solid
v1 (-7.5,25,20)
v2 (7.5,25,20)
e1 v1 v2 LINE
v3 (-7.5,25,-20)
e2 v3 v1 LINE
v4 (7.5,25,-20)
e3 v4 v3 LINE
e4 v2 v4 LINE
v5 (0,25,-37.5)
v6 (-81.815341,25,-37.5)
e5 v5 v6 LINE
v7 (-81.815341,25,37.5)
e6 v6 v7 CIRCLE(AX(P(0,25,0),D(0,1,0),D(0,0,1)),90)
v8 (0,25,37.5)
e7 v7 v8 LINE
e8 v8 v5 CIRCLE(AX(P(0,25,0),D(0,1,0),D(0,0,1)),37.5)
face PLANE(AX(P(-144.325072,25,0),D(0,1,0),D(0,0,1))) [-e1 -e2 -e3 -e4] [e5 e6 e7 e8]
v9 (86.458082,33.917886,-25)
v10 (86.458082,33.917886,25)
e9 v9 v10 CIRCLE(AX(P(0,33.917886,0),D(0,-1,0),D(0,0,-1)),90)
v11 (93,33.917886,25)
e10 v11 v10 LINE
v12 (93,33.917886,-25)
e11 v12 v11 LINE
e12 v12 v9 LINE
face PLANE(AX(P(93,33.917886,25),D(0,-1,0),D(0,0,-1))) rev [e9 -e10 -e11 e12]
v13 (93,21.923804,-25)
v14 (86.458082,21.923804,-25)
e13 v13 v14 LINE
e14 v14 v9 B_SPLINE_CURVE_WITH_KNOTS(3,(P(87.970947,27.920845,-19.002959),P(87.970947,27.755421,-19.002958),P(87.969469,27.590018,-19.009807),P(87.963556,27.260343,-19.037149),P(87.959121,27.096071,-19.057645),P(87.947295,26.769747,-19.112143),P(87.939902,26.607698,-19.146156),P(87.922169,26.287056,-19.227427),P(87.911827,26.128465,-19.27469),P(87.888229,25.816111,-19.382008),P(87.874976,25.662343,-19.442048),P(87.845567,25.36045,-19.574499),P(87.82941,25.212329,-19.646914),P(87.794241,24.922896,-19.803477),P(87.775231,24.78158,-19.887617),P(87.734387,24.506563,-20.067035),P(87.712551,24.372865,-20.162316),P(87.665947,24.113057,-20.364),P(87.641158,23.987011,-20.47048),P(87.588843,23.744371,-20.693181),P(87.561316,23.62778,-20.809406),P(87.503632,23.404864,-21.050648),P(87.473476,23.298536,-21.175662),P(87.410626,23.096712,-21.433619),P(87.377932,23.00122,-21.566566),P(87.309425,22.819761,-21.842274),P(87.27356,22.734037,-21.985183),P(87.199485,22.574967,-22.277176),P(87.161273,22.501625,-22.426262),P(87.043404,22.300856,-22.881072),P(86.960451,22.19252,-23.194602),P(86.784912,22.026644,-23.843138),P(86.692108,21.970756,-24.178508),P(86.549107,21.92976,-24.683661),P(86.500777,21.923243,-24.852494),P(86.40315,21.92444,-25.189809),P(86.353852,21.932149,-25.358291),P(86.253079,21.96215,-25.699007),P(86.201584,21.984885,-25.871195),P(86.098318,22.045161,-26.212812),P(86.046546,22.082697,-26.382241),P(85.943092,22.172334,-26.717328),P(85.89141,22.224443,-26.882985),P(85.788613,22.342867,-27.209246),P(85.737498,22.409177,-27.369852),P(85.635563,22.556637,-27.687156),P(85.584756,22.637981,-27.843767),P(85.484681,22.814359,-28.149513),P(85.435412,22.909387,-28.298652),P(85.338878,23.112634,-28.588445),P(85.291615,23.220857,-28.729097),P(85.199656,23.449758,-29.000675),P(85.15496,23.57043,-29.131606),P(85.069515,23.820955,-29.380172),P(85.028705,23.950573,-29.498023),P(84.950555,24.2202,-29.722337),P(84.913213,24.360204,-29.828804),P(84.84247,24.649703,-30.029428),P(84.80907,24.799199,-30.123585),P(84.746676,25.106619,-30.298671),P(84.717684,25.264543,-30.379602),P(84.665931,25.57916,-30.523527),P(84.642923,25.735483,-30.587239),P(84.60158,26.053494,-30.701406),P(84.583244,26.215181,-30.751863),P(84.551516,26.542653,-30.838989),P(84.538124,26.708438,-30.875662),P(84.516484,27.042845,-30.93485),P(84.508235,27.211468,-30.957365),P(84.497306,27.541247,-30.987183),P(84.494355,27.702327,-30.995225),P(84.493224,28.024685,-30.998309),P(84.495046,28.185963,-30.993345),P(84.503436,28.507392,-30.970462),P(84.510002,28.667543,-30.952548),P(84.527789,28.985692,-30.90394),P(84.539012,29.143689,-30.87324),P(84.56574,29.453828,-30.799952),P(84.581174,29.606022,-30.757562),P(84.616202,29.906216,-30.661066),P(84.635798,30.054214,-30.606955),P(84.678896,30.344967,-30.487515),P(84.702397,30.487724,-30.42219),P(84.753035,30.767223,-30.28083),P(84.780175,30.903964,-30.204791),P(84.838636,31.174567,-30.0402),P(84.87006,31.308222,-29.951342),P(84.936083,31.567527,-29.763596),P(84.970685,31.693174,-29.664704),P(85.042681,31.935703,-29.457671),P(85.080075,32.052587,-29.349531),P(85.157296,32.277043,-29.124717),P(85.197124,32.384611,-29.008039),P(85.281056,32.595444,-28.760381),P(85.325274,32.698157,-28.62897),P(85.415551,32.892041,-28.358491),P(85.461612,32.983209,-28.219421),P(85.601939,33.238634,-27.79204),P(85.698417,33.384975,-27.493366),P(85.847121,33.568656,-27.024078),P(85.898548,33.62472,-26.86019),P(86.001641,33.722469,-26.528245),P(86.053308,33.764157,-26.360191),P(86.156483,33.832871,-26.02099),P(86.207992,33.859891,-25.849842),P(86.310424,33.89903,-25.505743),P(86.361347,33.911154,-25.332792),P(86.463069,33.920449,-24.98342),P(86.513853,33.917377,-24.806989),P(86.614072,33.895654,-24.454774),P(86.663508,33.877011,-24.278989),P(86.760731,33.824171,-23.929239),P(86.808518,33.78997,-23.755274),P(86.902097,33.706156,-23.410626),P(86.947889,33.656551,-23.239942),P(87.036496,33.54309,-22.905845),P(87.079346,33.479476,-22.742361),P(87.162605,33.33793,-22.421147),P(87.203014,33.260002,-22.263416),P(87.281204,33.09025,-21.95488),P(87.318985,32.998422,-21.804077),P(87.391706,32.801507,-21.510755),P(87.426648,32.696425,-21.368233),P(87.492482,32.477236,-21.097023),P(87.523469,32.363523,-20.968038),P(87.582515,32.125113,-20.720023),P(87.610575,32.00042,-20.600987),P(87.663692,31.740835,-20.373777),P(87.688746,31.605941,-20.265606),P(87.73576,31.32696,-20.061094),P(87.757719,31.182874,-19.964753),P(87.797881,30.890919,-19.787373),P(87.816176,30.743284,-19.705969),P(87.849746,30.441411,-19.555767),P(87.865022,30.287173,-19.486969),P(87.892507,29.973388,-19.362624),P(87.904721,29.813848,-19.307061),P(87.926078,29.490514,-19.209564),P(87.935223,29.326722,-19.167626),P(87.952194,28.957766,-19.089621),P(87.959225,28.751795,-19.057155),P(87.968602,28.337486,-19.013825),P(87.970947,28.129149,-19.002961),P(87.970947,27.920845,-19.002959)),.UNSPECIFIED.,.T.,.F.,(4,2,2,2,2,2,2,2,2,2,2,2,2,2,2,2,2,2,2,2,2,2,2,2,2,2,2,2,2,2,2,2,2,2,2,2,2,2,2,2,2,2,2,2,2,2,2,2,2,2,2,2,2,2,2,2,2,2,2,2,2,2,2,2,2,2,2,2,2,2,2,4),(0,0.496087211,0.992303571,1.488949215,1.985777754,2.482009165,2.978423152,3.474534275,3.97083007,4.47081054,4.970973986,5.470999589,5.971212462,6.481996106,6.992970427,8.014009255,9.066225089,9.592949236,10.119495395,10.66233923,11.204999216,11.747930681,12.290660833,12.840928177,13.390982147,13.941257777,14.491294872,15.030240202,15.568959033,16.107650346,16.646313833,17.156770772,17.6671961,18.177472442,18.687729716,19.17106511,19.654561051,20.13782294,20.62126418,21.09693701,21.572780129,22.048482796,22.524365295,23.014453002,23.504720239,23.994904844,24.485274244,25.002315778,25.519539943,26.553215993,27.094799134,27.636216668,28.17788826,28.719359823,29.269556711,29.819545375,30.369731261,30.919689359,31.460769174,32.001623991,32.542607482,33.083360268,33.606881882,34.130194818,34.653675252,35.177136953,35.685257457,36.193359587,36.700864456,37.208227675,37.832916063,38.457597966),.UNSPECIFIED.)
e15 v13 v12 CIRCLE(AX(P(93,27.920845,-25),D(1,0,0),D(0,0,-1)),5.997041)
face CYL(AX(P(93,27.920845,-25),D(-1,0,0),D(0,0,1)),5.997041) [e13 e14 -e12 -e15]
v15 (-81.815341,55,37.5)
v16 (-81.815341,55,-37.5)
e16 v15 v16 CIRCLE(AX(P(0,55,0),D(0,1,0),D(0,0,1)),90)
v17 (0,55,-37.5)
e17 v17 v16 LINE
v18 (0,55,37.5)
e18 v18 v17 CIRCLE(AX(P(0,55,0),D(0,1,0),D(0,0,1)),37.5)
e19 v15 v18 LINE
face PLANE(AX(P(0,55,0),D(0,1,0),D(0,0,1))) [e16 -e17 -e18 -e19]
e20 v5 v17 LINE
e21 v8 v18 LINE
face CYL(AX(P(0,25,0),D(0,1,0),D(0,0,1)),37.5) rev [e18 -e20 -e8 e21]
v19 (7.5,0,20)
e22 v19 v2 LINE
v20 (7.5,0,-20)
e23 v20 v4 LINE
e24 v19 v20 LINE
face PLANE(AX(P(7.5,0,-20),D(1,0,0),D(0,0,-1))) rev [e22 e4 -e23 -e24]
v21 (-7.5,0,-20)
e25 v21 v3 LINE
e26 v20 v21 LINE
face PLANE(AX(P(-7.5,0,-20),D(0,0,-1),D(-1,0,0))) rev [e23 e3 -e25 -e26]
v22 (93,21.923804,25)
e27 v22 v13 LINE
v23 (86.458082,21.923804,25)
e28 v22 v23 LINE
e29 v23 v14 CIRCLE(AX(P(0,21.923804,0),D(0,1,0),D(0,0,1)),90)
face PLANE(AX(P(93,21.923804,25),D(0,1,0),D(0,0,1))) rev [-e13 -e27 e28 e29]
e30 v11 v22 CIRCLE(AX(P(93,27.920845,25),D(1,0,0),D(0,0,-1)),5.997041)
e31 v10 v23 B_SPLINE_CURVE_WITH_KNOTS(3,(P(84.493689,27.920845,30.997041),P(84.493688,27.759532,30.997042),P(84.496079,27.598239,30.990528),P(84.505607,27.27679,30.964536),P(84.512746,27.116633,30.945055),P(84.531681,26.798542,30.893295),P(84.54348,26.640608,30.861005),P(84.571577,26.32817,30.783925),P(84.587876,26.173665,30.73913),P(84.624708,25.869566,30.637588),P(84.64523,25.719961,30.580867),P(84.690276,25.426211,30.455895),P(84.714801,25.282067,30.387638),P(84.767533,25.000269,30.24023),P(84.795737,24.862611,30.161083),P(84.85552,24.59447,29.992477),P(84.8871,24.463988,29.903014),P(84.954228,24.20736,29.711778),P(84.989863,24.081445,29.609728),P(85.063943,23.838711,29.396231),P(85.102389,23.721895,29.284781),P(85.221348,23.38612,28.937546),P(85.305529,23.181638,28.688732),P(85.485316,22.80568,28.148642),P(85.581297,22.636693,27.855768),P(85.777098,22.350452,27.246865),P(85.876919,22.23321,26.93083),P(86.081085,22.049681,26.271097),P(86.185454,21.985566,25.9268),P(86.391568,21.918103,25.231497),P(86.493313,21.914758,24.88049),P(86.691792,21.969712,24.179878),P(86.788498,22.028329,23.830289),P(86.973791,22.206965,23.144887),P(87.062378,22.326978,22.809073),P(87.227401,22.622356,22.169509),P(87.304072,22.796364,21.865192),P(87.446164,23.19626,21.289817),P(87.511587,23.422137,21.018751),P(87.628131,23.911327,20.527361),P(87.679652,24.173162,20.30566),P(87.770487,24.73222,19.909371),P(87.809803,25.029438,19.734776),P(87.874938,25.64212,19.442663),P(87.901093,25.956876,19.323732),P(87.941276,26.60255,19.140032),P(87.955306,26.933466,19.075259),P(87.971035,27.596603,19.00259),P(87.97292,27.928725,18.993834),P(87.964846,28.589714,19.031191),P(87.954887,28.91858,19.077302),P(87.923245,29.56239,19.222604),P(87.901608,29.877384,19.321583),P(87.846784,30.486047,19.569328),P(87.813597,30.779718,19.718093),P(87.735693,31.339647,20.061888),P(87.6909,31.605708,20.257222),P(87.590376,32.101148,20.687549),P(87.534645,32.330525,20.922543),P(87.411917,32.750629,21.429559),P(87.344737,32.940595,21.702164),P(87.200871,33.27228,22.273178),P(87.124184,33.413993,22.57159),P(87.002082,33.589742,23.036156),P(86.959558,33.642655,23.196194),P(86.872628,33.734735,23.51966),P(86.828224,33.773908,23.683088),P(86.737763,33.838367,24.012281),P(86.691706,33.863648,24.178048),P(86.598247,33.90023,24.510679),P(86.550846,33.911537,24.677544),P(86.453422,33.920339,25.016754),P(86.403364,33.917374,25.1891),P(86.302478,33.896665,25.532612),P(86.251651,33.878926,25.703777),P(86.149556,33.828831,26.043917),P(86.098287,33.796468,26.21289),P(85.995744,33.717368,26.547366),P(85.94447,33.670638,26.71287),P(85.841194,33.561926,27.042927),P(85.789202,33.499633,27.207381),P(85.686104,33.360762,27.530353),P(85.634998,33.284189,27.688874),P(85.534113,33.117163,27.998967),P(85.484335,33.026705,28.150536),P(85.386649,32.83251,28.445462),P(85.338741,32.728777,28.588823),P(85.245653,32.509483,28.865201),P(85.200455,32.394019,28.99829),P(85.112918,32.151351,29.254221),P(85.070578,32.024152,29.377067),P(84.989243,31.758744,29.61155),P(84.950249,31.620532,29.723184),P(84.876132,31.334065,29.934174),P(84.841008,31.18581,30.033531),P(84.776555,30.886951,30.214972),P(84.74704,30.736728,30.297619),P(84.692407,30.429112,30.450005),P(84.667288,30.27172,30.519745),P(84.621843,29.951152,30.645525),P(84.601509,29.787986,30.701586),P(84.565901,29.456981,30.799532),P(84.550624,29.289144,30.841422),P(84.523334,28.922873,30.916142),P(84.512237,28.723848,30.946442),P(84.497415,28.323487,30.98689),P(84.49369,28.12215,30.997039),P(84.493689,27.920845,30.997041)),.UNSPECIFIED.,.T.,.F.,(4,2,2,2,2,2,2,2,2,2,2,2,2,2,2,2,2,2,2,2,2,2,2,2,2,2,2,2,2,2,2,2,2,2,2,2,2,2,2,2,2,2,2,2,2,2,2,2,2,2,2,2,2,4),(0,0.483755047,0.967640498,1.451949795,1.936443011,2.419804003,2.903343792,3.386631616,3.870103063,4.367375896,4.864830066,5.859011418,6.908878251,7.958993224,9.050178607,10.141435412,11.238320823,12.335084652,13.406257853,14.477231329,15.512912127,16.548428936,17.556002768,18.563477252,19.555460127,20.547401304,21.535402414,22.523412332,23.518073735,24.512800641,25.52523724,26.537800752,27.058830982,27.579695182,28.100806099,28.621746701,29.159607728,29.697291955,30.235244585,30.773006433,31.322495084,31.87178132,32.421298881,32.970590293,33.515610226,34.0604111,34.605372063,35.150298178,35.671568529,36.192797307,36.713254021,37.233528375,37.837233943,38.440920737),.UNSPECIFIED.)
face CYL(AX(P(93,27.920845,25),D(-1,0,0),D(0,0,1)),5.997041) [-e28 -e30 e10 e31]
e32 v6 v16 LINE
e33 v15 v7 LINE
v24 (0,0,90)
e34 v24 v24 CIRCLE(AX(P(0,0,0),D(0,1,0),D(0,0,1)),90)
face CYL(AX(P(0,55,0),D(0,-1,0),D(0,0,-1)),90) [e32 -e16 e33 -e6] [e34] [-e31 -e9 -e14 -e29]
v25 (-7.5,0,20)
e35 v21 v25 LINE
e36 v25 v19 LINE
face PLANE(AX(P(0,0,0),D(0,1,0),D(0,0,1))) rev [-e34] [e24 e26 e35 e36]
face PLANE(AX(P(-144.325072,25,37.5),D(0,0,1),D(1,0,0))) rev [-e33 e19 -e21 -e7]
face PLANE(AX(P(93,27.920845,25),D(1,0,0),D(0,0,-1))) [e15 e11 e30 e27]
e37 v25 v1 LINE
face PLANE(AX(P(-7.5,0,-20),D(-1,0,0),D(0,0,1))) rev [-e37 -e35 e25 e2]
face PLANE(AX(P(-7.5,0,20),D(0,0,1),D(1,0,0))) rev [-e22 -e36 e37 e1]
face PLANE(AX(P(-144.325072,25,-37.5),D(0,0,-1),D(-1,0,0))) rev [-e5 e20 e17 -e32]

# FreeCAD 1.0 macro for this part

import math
import FreeCAD as App
import Part
import Sketcher

V = App.Vector
Q = App.Units.Quantity


def add_polygon(sketch, points):
    """Adds a closed chain of lines whose ends are joined by coincident constraints."""
    first, n = sketch.GeometryCount, len(points)
    for a, b in zip(points, points[1:] + points[:1]):
        sketch.addGeometry(Part.LineSegment(App.Vector(*a, 0), App.Vector(*b, 0)), False)
    for i in range(n):
        sketch.addConstraint(Sketcher.Constraint("Coincident", first + i, 2, first + (i + 1) % n, 1))

doc = App.newDocument("Part")
body = doc.addObject("PartDesign::Body", "Body")

sketch1 = body.newObject("Sketcher::SketchObject", "Sketch")
sketch1.AttachmentSupport = (doc.getObject("XZ_Plane"), [""])
sketch1.MapMode = "FlatFace"
sketch1.addGeometry(Part.Circle(V(0, 0, 0), V(0, 0, 1), 90), False)
sketch1.addConstraint([
    Sketcher.Constraint("Coincident", 0, 3, -1, 1),
    Sketcher.Constraint("Diameter", 0, Q("180 mm")),
])
pad1 = body.newObject("PartDesign::Pad", "Pad")
pad1.Profile = sketch1
pad1.Length = 55
pad1.Reversed = True

sketch2 = body.newObject("Sketcher::SketchObject", "Sketch001")
sketch2.AttachmentSupport = (doc.getObject("XZ_Plane"), [""])
sketch2.MapMode = "FlatFace"
sketch2.AttachmentOffset = App.Placement(V(0, 0, -55), App.Rotation())
sketch2.addGeometry([
    Part.LineSegment(V(0, -38, 0), V(-144, -38, 0)),
    Part.ArcOfCircle(Part.Circle(V(-144, 0, 0), V(0, 0, 1), 38), math.radians(90), math.radians(270)),
    Part.LineSegment(V(-144, 38, 0), V(0, 38, 0)),
    Part.ArcOfCircle(Part.Circle(V(0, 0, 0), V(0, 0, 1), 38), math.radians(-90), math.radians(90)),
], False)
sketch2.addConstraint([
    Sketcher.Constraint("Tangent", 0, 2, 1, 2),
    Sketcher.Constraint("Tangent", 1, 1, 2, 1),
    Sketcher.Constraint("Tangent", 2, 2, 3, 2),
    Sketcher.Constraint("Tangent", 3, 1, 0, 1),
    Sketcher.Constraint("Horizontal", 0),
    Sketcher.Constraint("Horizontal", 2),
    Sketcher.Constraint("Coincident", 3, 3, -1, 1),
    Sketcher.Constraint("Radius", 1, Q("37.5 mm")),
    Sketcher.Constraint("DistanceX", 0, 2, 0, 1, Q("144.325072 mm")),
])
pocket1 = body.newObject("PartDesign::Pocket", "Pocket")
pocket1.Profile = sketch2
pocket1.Length = 30
pocket1.Reversed = True

sketch3 = body.newObject("Sketcher::SketchObject", "Sketch002")
sketch3.AttachmentSupport = (doc.getObject("XZ_Plane"), [""])
sketch3.MapMode = "FlatFace"
sketch3.AttachmentOffset = App.Placement(V(0, 0, -25), App.Rotation())
add_polygon(sketch3, [(-8, -20), (-8, 20), (8, 20), (8, -20)])
sketch3.addConstraint([
    Sketcher.Constraint("Vertical", 0),
    Sketcher.Constraint("Horizontal", 1),
    Sketcher.Constraint("Vertical", 2),
    Sketcher.Constraint("Horizontal", 3),
    Sketcher.Constraint("Symmetric", 0, 2, 2, 2, -1, 1),
    Sketcher.Constraint("DistanceX", 1, 1, 1, 2, Q("15 mm")),
    Sketcher.Constraint("DistanceY", 0, 1, 0, 2, Q("40 mm")),
])
pocket2 = body.newObject("PartDesign::Pocket", "Pocket001")
pocket2.Profile = sketch3
pocket2.Type = "ThroughAll"
pocket2.Reversed = True

sketch4 = body.newObject("Sketcher::SketchObject", "Sketch003")
sketch4.AttachmentSupport = (doc.getObject("YZ_Plane"), [""])
sketch4.MapMode = "FlatFace"
sketch4.AttachmentOffset = App.Placement(V(0, 0, 50), App.Rotation())
sketch4.addGeometry([
    Part.LineSegment(V(34, -25, 0), V(34, 25, 0)),
    Part.ArcOfCircle(Part.Circle(V(28, 25, 0), V(0, 0, 1), 6), math.radians(0), math.radians(180)),
    Part.LineSegment(V(22, 25, 0), V(22, -25, 0)),
    Part.ArcOfCircle(Part.Circle(V(28, -25, 0), V(0, 0, 1), 6), math.radians(180), math.radians(360)),
], False)
sketch4.addConstraint([
    Sketcher.Constraint("Tangent", 0, 2, 1, 1),
    Sketcher.Constraint("Tangent", 1, 2, 2, 1),
    Sketcher.Constraint("Tangent", 2, 2, 3, 1),
    Sketcher.Constraint("Tangent", 3, 2, 0, 1),
    Sketcher.Constraint("Vertical", 0),
    Sketcher.Constraint("Vertical", 2),
    Sketcher.Constraint("DistanceY", 0, 1, 0, 2, Q("50 mm")),
    Sketcher.Constraint("DistanceY", -1, 1, 1, 3, Q("25 mm")),
    Sketcher.Constraint("Radius", 1, Q("5.997041 mm")),
    Sketcher.Constraint("DistanceX", -1, 1, 1, 3, Q("27.920845 mm")),
])
pad2 = body.newObject("PartDesign::Pad", "Pad001")
pad2.Profile = sketch4
pad2.Length = 43

doc.recompute()
